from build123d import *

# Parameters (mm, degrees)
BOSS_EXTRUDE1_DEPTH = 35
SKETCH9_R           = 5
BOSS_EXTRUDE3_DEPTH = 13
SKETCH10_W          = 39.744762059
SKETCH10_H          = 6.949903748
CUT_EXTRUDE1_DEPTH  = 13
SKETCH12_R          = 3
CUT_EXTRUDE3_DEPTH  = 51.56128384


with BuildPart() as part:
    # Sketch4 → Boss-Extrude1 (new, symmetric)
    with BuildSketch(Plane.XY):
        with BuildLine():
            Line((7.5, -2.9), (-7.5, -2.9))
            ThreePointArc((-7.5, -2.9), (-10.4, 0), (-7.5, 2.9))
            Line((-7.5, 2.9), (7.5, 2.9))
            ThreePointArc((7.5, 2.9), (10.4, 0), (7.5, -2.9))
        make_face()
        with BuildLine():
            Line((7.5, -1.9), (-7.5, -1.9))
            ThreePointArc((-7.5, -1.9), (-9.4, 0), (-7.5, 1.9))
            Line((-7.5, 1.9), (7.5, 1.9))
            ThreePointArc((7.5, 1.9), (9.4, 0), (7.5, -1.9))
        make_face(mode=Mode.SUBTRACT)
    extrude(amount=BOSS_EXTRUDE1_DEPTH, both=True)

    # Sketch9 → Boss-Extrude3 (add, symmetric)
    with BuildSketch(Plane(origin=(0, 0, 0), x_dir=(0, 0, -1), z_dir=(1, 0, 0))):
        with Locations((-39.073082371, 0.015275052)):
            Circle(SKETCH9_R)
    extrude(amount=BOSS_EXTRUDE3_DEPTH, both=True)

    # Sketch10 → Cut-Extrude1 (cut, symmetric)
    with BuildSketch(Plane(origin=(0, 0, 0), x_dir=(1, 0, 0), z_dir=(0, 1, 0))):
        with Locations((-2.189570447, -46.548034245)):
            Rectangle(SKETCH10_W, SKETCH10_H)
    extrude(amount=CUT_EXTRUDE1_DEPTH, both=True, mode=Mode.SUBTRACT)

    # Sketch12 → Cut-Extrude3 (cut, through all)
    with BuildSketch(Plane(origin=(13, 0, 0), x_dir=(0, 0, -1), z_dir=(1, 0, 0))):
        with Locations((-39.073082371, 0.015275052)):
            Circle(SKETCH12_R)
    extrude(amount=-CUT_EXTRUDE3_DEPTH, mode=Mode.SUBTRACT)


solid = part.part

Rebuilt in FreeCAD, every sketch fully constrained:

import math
import FreeCAD as App
import Part
import Sketcher
from FreeCAD import Vector
Q = App.Units.Quantity

doc = App.newDocument("Part")
params = doc.addObject("Spreadsheet::Sheet", "Params")
for row, (alias, value) in enumerate([
    ("sketch1_radius", "2.9 mm"),
    ("sketch1_radius2", "1.9 mm"),
    ("sketch1_width", "15 mm"),
    ("pad1_length", "70 mm"),
    ("sketch2_diameter", "10 mm"),
    ("pad2_length", "26 mm"),
    ("pocket1_length", "26 mm"),
    ("sketch4_diameter", "6 mm"),
], start=1):
    params.set(f"A{row}", alias)
    params.set(f"B{row}", "=" + value)
    params.setAlias(f"B{row}", alias)

body = doc.addObject("PartDesign::Body", "Body")

# Sketch on XY plane
sketch1 = body.newObject("Sketcher::SketchObject", "Sketch")
sketch1.AttachmentSupport = (doc.getObject("XY_Plane"), [""])
sketch1.MapMode = "FlatFace"
sketch1.addGeometry([
    Part.LineSegment(Vector(-7.5, -2.9, 0), Vector(7.5, -2.9, 0)),  # 0
    Part.ArcOfCircle(Part.Circle(Vector(7.5, 0, 0), Vector(0, 0, 1), 2.9), math.radians(-90), math.radians(90)),  # 1
    Part.LineSegment(Vector(7.5, 2.9, 0), Vector(-7.5, 2.9, 0)),  # 2
    Part.ArcOfCircle(Part.Circle(Vector(-7.5, 0, 0), Vector(0, 0, 1), 2.9), math.radians(90), math.radians(270)),  # 3
    Part.LineSegment(Vector(7.5, -1.9, 0), Vector(-7.5, -1.9, 0)),  # 4
    Part.ArcOfCircle(Part.Circle(Vector(-7.5, 0, 0), Vector(0, 0, 1), 1.9), math.radians(90), math.radians(270)),  # 5
    Part.LineSegment(Vector(-7.5, 1.9, 0), Vector(7.5, 1.9, 0)),  # 6
    Part.ArcOfCircle(Part.Circle(Vector(7.5, 0, 0), Vector(0, 0, 1), 1.9), math.radians(-90), math.radians(90)),  # 7
], False)
sketch1.addConstraint([
    Sketcher.Constraint("Tangent", 0, 2, 1, 1),
    Sketcher.Constraint("Tangent", 1, 2, 2, 1),
    Sketcher.Constraint("Tangent", 2, 2, 3, 1),
    Sketcher.Constraint("Tangent", 3, 2, 0, 1),
    Sketcher.Constraint("Tangent", 4, 2, 5, 2),
    Sketcher.Constraint("Tangent", 5, 1, 6, 1),
    Sketcher.Constraint("Tangent", 6, 2, 7, 2),
    Sketcher.Constraint("Tangent", 7, 1, 4, 1),
    Sketcher.Constraint("Horizontal", 0),
    Sketcher.Constraint("Horizontal", 2),
    Sketcher.Constraint("Horizontal", 4),
    Sketcher.Constraint("Horizontal", 6),
    Sketcher.Constraint("Coincident", 5, 3, 3, 3),
    Sketcher.Constraint("Symmetric", 1, 3, 3, 3, -1, 1),
    Sketcher.Constraint("Vertical", 7, 3, 0, 2),
    Sketcher.Constraint("Radius", 1, Q("2.9 mm")),
    Sketcher.Constraint("Radius", 5, Q("1.9 mm")),
    Sketcher.Constraint("DistanceX", 0, 1, 0, 2, Q("15 mm")),
])
sketch1.setExpression("Constraints[15]", "Params.sketch1_radius")
sketch1.setExpression("Constraints[16]", "Params.sketch1_radius2")
sketch1.setExpression("Constraints[17]", "Params.sketch1_width")
pad1 = body.newObject("PartDesign::Pad", "Pad")
pad1.Profile = sketch1
pad1.setExpression("Length", "Params.pad1_length")
pad1.Midplane = True

# Sketch on YZ plane
sketch2 = body.newObject("Sketcher::SketchObject", "Sketch001")
sketch2.AttachmentSupport = (doc.getObject("YZ_Plane"), [""])
sketch2.MapMode = "FlatFace"
sketch2.addGeometry(Part.Circle(Vector(0.015275, 39.073082, 0), Vector(0, 0, 1), 5), False)
sketch2.addConstraint([
    Sketcher.Constraint("Diameter", 0, Q("10 mm")),
    Sketcher.Constraint("DistanceX", -1, 1, 0, 3, Q("0.015275 mm")),
    Sketcher.Constraint("DistanceY", -1, 1, 0, 3, Q("39.073082 mm")),
])
sketch2.setExpression("Constraints[0]", "Params.sketch2_diameter")
pad2 = body.newObject("PartDesign::Pad", "Pad001")
pad2.Profile = sketch2
pad2.setExpression("Length", "Params.pad2_length")
pad2.Midplane = True

# Sketch on XZ plane
sketch3 = body.newObject("Sketcher::SketchObject", "Sketch002")
sketch3.AttachmentSupport = (doc.getObject("XZ_Plane"), [""])
sketch3.MapMode = "FlatFace"
sketch3.addGeometry([
    Part.LineSegment(Vector(-22.061951, 43.073082, 0), Vector(-22.061951, 50.022986, 0)),
    Part.LineSegment(Vector(-22.061951, 50.022986, 0), Vector(17.682811, 50.022986, 0)),
    Part.LineSegment(Vector(17.682811, 50.022986, 0), Vector(17.682811, 43.073082, 0)),
    Part.LineSegment(Vector(17.682811, 43.073082, 0), Vector(-22.061951, 43.073082, 0)),
], False)
sketch3.addConstraint([
    Sketcher.Constraint("Coincident", 0, 2, 1, 1),
    Sketcher.Constraint("Coincident", 1, 2, 2, 1),
    Sketcher.Constraint("Coincident", 2, 2, 3, 1),
    Sketcher.Constraint("Coincident", 3, 2, 0, 1),
    Sketcher.Constraint("Vertical", 0),
    Sketcher.Constraint("Horizontal", 1),
    Sketcher.Constraint("Vertical", 2),
    Sketcher.Constraint("Horizontal", 3),
    Sketcher.Constraint("DistanceX", 1, 1, 1, 2, Q("39.744762 mm")),
    Sketcher.Constraint("DistanceY", 0, 1, 0, 2, Q("6.949904 mm")),
    Sketcher.Constraint("DistanceX", 0, 2, -1, 1, Q("22.061951 mm")),
    Sketcher.Constraint("DistanceY", -1, 1, 0, 2, Q("50.022986 mm")),
])
pocket1 = body.newObject("PartDesign::Pocket", "Pocket")
pocket1.Profile = sketch3
pocket1.setExpression("Length", "Params.pocket1_length")
pocket1.Midplane = True

# Sketch on YZ plane
sketch4 = body.newObject("Sketcher::SketchObject", "Sketch003")
sketch4.AttachmentSupport = (doc.getObject("YZ_Plane"), [""])
sketch4.MapMode = "FlatFace"
sketch4.AttachmentOffset = App.Placement(Vector(0, 0, 13), App.Rotation())
sketch4.addGeometry(Part.Circle(Vector(0.015275, 39.073082, 0), Vector(0, 0, 1), 3), False)
sketch4.addConstraint([
    Sketcher.Constraint("Diameter", 0, Q("6 mm")),
    Sketcher.Constraint("DistanceX", -1, 1, 0, 3, Q("0.015275 mm")),
    Sketcher.Constraint("DistanceY", -1, 1, 0, 3, Q("39.073082 mm")),
])
sketch4.setExpression("Constraints[0]", "Params.sketch4_diameter")
pocket2 = body.newObject("PartDesign::Pocket", "Pocket001")
pocket2.Profile = sketch4
pocket2.Type = "ThroughAll"

doc.recompute()
